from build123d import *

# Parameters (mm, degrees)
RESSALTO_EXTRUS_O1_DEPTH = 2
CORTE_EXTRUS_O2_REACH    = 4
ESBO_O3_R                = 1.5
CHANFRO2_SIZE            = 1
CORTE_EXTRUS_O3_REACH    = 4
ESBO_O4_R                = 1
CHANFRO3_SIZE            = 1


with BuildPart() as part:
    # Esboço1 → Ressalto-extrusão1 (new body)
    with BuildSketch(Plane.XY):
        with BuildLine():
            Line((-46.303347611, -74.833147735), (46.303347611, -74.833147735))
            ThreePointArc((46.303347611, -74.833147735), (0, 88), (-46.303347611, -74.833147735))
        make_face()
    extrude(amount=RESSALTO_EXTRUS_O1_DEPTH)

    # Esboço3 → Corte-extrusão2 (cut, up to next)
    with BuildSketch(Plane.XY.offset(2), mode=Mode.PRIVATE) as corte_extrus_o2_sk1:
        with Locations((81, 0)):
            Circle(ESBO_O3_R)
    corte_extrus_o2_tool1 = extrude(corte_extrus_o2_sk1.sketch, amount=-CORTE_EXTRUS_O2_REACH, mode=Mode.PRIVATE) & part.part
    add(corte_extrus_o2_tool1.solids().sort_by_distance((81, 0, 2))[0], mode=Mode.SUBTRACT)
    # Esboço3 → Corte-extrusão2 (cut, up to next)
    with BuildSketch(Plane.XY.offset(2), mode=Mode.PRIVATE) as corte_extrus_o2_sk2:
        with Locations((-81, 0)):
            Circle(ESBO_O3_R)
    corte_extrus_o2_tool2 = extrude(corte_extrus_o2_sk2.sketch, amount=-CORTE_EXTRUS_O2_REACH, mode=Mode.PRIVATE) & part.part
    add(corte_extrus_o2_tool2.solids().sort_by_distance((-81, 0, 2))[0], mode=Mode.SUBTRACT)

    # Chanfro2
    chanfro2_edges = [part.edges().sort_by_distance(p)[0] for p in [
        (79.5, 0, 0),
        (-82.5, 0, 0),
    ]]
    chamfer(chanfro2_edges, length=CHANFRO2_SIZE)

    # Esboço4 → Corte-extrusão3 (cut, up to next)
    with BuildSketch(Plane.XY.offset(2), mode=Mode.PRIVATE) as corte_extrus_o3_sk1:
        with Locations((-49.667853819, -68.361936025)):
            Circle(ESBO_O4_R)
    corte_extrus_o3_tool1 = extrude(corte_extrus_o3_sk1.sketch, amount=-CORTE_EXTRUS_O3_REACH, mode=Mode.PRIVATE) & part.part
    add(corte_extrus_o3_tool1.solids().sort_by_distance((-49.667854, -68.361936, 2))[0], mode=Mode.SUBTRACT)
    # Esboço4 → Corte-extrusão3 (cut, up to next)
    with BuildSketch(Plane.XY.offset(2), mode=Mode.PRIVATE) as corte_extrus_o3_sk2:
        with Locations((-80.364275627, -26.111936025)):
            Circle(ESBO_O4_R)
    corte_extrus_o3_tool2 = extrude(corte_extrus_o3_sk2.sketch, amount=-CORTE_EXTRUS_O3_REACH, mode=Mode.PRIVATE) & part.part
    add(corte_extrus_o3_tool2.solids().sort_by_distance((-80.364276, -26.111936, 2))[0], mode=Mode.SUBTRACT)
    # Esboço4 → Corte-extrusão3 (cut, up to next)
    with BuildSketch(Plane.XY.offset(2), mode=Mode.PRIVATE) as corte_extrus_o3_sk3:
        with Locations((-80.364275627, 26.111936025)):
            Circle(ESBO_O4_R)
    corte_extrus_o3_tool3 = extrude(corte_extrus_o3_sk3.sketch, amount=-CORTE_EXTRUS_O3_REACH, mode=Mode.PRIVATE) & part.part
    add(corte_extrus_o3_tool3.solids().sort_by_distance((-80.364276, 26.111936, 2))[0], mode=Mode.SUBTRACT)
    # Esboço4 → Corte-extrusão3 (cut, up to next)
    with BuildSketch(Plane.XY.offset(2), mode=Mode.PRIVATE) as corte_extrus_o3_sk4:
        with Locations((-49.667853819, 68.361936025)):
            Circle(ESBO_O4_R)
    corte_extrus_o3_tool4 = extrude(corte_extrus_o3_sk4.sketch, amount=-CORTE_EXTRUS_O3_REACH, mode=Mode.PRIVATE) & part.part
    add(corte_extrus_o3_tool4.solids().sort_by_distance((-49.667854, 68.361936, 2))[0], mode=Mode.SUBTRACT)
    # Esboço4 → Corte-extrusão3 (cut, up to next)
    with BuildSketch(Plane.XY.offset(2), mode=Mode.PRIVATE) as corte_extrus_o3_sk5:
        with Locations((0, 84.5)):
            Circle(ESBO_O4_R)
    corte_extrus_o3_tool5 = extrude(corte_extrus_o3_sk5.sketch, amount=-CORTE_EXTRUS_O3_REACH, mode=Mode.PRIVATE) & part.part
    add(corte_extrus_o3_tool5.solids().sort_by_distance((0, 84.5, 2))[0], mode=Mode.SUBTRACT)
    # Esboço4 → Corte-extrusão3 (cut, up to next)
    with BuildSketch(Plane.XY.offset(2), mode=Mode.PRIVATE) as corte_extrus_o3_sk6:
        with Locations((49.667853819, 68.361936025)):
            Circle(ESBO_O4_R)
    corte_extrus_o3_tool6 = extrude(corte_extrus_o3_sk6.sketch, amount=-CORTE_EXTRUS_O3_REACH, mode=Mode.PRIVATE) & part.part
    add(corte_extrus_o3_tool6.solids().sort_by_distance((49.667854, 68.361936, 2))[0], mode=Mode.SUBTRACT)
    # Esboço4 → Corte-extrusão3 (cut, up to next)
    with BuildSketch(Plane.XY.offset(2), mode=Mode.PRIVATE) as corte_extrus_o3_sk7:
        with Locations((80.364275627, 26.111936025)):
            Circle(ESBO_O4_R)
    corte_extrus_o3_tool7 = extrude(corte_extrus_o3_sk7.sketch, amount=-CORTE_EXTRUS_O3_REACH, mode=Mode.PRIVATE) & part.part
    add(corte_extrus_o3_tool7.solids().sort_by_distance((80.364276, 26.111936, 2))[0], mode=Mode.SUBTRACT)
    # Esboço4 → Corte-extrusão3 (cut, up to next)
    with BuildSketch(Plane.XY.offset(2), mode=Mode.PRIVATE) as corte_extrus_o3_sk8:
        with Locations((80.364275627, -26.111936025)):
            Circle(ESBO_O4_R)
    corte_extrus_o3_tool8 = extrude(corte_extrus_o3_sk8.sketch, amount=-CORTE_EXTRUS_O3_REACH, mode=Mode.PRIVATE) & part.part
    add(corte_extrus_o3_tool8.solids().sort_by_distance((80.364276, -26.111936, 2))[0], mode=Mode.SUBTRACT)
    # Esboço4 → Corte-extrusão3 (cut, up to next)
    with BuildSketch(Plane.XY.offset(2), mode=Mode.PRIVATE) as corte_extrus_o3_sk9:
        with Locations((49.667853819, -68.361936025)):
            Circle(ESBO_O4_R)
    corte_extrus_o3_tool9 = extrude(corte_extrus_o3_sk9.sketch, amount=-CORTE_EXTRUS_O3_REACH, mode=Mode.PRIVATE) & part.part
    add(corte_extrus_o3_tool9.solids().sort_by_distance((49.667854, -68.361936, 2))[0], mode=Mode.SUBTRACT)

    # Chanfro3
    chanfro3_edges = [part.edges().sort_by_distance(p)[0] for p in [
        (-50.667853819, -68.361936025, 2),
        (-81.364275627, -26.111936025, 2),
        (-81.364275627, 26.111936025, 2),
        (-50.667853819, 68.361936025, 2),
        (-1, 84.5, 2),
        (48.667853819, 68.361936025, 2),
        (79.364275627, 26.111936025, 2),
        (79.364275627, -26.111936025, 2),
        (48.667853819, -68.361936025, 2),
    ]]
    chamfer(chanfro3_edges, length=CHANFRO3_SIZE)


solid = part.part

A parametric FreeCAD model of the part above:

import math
import FreeCAD as App
import Part
import Sketcher

V = App.Vector


def edges_at(feature, points):
    """Names of the edges that pass closest to the given points."""
    edges = feature.Shape.Edges
    near = lambda p: min(range(len(edges)), key=lambda i: edges[i].distToShape(Part.Vertex(*p))[0])
    return sorted({f"Edge{near(p) + 1}" for p in points})

doc = App.newDocument("Part")
body = doc.addObject("PartDesign::Body", "Body")

# Sketch on XY plane
sketch1 = body.newObject("Sketcher::SketchObject", "Sketch")
sketch1.AttachmentSupport = (doc.getObject("XY_Plane"), [""])
sketch1.MapMode = "FlatFace"
sketch1.addGeometry([
    Part.LineSegment(V(-46.303348, -74.833148, 0), V(46.303348, -74.833148, 0)),
    Part.ArcOfCircle(Part.Circle(V(0, 0, 0), V(0, 0, 1), 88), math.radians(-58.252663), math.radians(238.252663)),
], False)
sketch1.addConstraint([
    Sketcher.Constraint("Coincident", 0, 1, 1, 2),
    Sketcher.Constraint("Coincident", 1, 1, 0, 2),
    Sketcher.Constraint("Horizontal", 0),
    Sketcher.Constraint("Coincident", 1, 3, -1, 1),
    Sketcher.Constraint("Radius", 1, 88.0),
    Sketcher.Constraint("DistanceX", 0, 1, 0, 2, 92.606695),
])
pad1 = body.newObject("PartDesign::Pad", "Pad")
pad1.Profile = sketch1
pad1.Length = 2

# Sketch on XY plane
sketch2 = body.newObject("Sketcher::SketchObject", "Sketch001")
sketch2.AttachmentSupport = (doc.getObject("XY_Plane"), [""])
sketch2.MapMode = "FlatFace"
sketch2.AttachmentOffset = App.Placement(V(0, 0, 2), App.Rotation())
sketch2.addGeometry(Part.Circle(V(81, 0, 0), V(0, 0, 1), 1.5), False)
sketch2.addConstraint([
    Sketcher.Constraint("PointOnObject", 0, 3, -1),
    Sketcher.Constraint("Diameter", 0, 3.0),
    Sketcher.Constraint("DistanceX", -1, 1, 0, 3, 81.0),
])
pocket1 = body.newObject("PartDesign::Pocket", "Pocket")
pocket1.Profile = sketch2
pocket1.Type = "UpToFirst"

# Sketch on XY plane
sketch3 = body.newObject("Sketcher::SketchObject", "Sketch002")
sketch3.AttachmentSupport = (doc.getObject("XY_Plane"), [""])
sketch3.MapMode = "FlatFace"
sketch3.AttachmentOffset = App.Placement(V(0, 0, 2), App.Rotation())
sketch3.addGeometry(Part.Circle(V(-81, 0, 0), V(0, 0, 1), 1.5), False)
sketch3.addConstraint([
    Sketcher.Constraint("PointOnObject", 0, 3, -1),
    Sketcher.Constraint("Diameter", 0, 3.0),
    Sketcher.Constraint("DistanceX", 0, 3, -1, 1, 81.0),
])
pocket2 = body.newObject("PartDesign::Pocket", "Pocket001")
pocket2.Profile = sketch3
pocket2.Type = "UpToFirst"
doc.recompute()

chamfer = body.newObject("PartDesign::Chamfer", "Chamfer")
chamfer.Base = (pocket2, edges_at(pocket2, [(79.5, 0, 0), (-82.5, 0, 0)]))
chamfer.Size = 1

# Sketch on XY plane
sketch4 = body.newObject("Sketcher::SketchObject", "Sketch003")
sketch4.AttachmentSupport = (doc.getObject("XY_Plane"), [""])
sketch4.MapMode = "FlatFace"
sketch4.AttachmentOffset = App.Placement(V(0, 0, 2), App.Rotation())
sketch4.addGeometry(Part.Circle(V(-49.667854, -68.361936, 0), V(0, 0, 1), 1), False)
sketch4.addConstraint([
    Sketcher.Constraint("Diameter", 0, 2.0),
    Sketcher.Constraint("DistanceX", 0, 3, -1, 1, 49.667854),
    Sketcher.Constraint("DistanceY", 0, 3, -1, 1, 68.361936),
])
pocket3 = body.newObject("PartDesign::Pocket", "Pocket002")
pocket3.Profile = sketch4
pocket3.Type = "UpToFirst"

# Sketch on XY plane
sketch5 = body.newObject("Sketcher::SketchObject", "Sketch004")
sketch5.AttachmentSupport = (doc.getObject("XY_Plane"), [""])
sketch5.MapMode = "FlatFace"
sketch5.AttachmentOffset = App.Placement(V(0, 0, 2), App.Rotation())
sketch5.addGeometry(Part.Circle(V(-80.364276, -26.111936, 0), V(0, 0, 1), 1), False)
sketch5.addConstraint([
    Sketcher.Constraint("Diameter", 0, 2.0),
    Sketcher.Constraint("DistanceX", 0, 3, -1, 1, 80.364276),
    Sketcher.Constraint("DistanceY", 0, 3, -1, 1, 26.111936),
])
pocket4 = body.newObject("PartDesign::Pocket", "Pocket003")
pocket4.Profile = sketch5
pocket4.Type = "UpToFirst"

# Sketch on XY plane
sketch6 = body.newObject("Sketcher::SketchObject", "Sketch005")
sketch6.AttachmentSupport = (doc.getObject("XY_Plane"), [""])
sketch6.MapMode = "FlatFace"
sketch6.AttachmentOffset = App.Placement(V(0, 0, 2), App.Rotation())
sketch6.addGeometry(Part.Circle(V(-80.364276, 26.111936, 0), V(0, 0, 1), 1), False)
sketch6.addConstraint([
    Sketcher.Constraint("Diameter", 0, 2.0),
    Sketcher.Constraint("DistanceX", 0, 3, -1, 1, 80.364276),
    Sketcher.Constraint("DistanceY", -1, 1, 0, 3, 26.111936),
])
pocket5 = body.newObject("PartDesign::Pocket", "Pocket004")
pocket5.Profile = sketch6
pocket5.Type = "UpToFirst"

# Sketch on XY plane
sketch7 = body.newObject("Sketcher::SketchObject", "Sketch006")
sketch7.AttachmentSupport = (doc.getObject("XY_Plane"), [""])
sketch7.MapMode = "FlatFace"
sketch7.AttachmentOffset = App.Placement(V(0, 0, 2), App.Rotation())
sketch7.addGeometry(Part.Circle(V(-49.667854, 68.361936, 0), V(0, 0, 1), 1), False)
sketch7.addConstraint([
    Sketcher.Constraint("Diameter", 0, 2.0),
    Sketcher.Constraint("DistanceX", 0, 3, -1, 1, 49.667854),
    Sketcher.Constraint("DistanceY", -1, 1, 0, 3, 68.361936),
])
pocket6 = body.newObject("PartDesign::Pocket", "Pocket005")
pocket6.Profile = sketch7
pocket6.Type = "UpToFirst"

# Sketch on XY plane
sketch8 = body.newObject("Sketcher::SketchObject", "Sketch007")
sketch8.AttachmentSupport = (doc.getObject("XY_Plane"), [""])
sketch8.MapMode = "FlatFace"
sketch8.AttachmentOffset = App.Placement(V(0, 0, 2), App.Rotation())
sketch8.addGeometry(Part.Circle(V(0, 84.5, 0), V(0, 0, 1), 1), False)
sketch8.addConstraint([
    Sketcher.Constraint("PointOnObject", 0, 3, -2),
    Sketcher.Constraint("Diameter", 0, 2.0),
    Sketcher.Constraint("DistanceY", -1, 1, 0, 3, 84.5),
])
pocket7 = body.newObject("PartDesign::Pocket", "Pocket006")
pocket7.Profile = sketch8
pocket7.Type = "UpToFirst"

# Sketch on XY plane
sketch9 = body.newObject("Sketcher::SketchObject", "Sketch008")
sketch9.AttachmentSupport = (doc.getObject("XY_Plane"), [""])
sketch9.MapMode = "FlatFace"
sketch9.AttachmentOffset = App.Placement(V(0, 0, 2), App.Rotation())
sketch9.addGeometry(Part.Circle(V(49.667854, 68.361936, 0), V(0, 0, 1), 1), False)
sketch9.addConstraint([
    Sketcher.Constraint("Diameter", 0, 2.0),
    Sketcher.Constraint("DistanceX", -1, 1, 0, 3, 49.667854),
    Sketcher.Constraint("DistanceY", -1, 1, 0, 3, 68.361936),
])
pocket8 = body.newObject("PartDesign::Pocket", "Pocket007")
pocket8.Profile = sketch9
pocket8.Type = "UpToFirst"

# Sketch on XY plane
sketch10 = body.newObject("Sketcher::SketchObject", "Sketch009")
sketch10.AttachmentSupport = (doc.getObject("XY_Plane"), [""])
sketch10.MapMode = "FlatFace"
sketch10.AttachmentOffset = App.Placement(V(0, 0, 2), App.Rotation())
sketch10.addGeometry(Part.Circle(V(80.364276, 26.111936, 0), V(0, 0, 1), 1), False)
sketch10.addConstraint([
    Sketcher.Constraint("Diameter", 0, 2.0),
    Sketcher.Constraint("DistanceX", -1, 1, 0, 3, 80.364276),
    Sketcher.Constraint("DistanceY", -1, 1, 0, 3, 26.111936),
])
pocket9 = body.newObject("PartDesign::Pocket", "Pocket008")
pocket9.Profile = sketch10
pocket9.Type = "UpToFirst"

# Sketch on XY plane
sketch11 = body.newObject("Sketcher::SketchObject", "Sketch010")
sketch11.AttachmentSupport = (doc.getObject("XY_Plane"), [""])
sketch11.MapMode = "FlatFace"
sketch11.AttachmentOffset = App.Placement(V(0, 0, 2), App.Rotation())
sketch11.addGeometry(Part.Circle(V(80.364276, -26.111936, 0), V(0, 0, 1), 1), False)
sketch11.addConstraint([
    Sketcher.Constraint("Diameter", 0, 2.0),
    Sketcher.Constraint("DistanceX", -1, 1, 0, 3, 80.364276),
    Sketcher.Constraint("DistanceY", 0, 3, -1, 1, 26.111936),
])
pocket10 = body.newObject("PartDesign::Pocket", "Pocket009")
pocket10.Profile = sketch11
pocket10.Type = "UpToFirst"

# Sketch on XY plane
sketch12 = body.newObject("Sketcher::SketchObject", "Sketch011")
sketch12.AttachmentSupport = (doc.getObject("XY_Plane"), [""])
sketch12.MapMode = "FlatFace"
sketch12.AttachmentOffset = App.Placement(V(0, 0, 2), App.Rotation())
sketch12.addGeometry(Part.Circle(V(49.667854, -68.361936, 0), V(0, 0, 1), 1), False)
sketch12.addConstraint([
    Sketcher.Constraint("Diameter", 0, 2.0),
    Sketcher.Constraint("DistanceX", -1, 1, 0, 3, 49.667854),
    Sketcher.Constraint("DistanceY", 0, 3, -1, 1, 68.361936),
])
pocket11 = body.newObject("PartDesign::Pocket", "Pocket010")
pocket11.Profile = sketch12
pocket11.Type = "UpToFirst"
doc.recompute()

chamfer2 = body.newObject("PartDesign::Chamfer", "Chamfer001")
chamfer2.Base = (pocket11, edges_at(pocket11, [
    (-50.668, -68.362, 2),
    (-81.364, -26.112, 2),
    (-81.364, 26.112, 2),
    (-50.668, 68.362, 2),
    (-1, 84.5, 2),
    (48.668, 68.362, 2),
    (79.364, 26.112, 2),
    (79.364, -26.112, 2),
    (48.668, -68.362, 2),
]))
chamfer2.Size = 1

doc.recompute()
